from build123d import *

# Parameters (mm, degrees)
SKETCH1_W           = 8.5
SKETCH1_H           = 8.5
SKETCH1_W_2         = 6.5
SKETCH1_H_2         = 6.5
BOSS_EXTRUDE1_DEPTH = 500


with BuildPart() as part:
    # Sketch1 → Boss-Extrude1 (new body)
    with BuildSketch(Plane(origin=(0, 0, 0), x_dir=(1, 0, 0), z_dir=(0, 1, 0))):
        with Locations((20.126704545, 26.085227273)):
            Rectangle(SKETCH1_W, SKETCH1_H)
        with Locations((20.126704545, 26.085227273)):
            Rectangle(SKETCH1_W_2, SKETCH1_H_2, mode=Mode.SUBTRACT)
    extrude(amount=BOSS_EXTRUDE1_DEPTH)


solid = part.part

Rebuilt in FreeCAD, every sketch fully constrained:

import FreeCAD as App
import Part
import Sketcher
from FreeCAD import Vector
Q = App.Units.Quantity

doc = App.newDocument("Part")
body = doc.addObject("PartDesign::Body", "Body")

sketch1 = body.newObject("Sketcher::SketchObject", "Sketch")
sketch1.AttachmentSupport = (doc.getObject("XZ_Plane"), [""])
sketch1.MapMode = "FlatFace"
sketch1.addGeometry(Part.LineSegment(Vector(16, -30, 0), Vector(16, -22, 0)), False)
sketch1.addGeometry(Part.LineSegment(Vector(16, -22, 0), Vector(24, -22, 0)), False)
sketch1.addGeometry(Part.LineSegment(Vector(24, -22, 0), Vector(24, -30, 0)), False)
sketch1.addGeometry(Part.LineSegment(Vector(24, -30, 0), Vector(16, -30, 0)), False)
sketch1.addGeometry(Part.LineSegment(Vector(23, -23, 0), Vector(17, -23, 0)), False)
sketch1.addGeometry(Part.LineSegment(Vector(17, -23, 0), Vector(17, -29, 0)), False)
sketch1.addGeometry(Part.LineSegment(Vector(17, -29, 0), Vector(23, -29, 0)), False)
sketch1.addGeometry(Part.LineSegment(Vector(23, -29, 0), Vector(23, -23, 0)), False)
sketch1.addConstraint(Sketcher.Constraint("Coincident", 0, 2, 1, 1))
sketch1.addConstraint(Sketcher.Constraint("Coincident", 1, 2, 2, 1))
sketch1.addConstraint(Sketcher.Constraint("Coincident", 2, 2, 3, 1))
sketch1.addConstraint(Sketcher.Constraint("Coincident", 3, 2, 0, 1))
sketch1.addConstraint(Sketcher.Constraint("Coincident", 4, 2, 5, 1))
sketch1.addConstraint(Sketcher.Constraint("Coincident", 5, 2, 6, 1))
sketch1.addConstraint(Sketcher.Constraint("Coincident", 6, 2, 7, 1))
sketch1.addConstraint(Sketcher.Constraint("Coincident", 7, 2, 4, 1))
sketch1.addConstraint(Sketcher.Constraint("Vertical", 0))
sketch1.addConstraint(Sketcher.Constraint("Horizontal", 1))
sketch1.addConstraint(Sketcher.Constraint("Vertical", 2))
sketch1.addConstraint(Sketcher.Constraint("Horizontal", 3))
sketch1.addConstraint(Sketcher.Constraint("Horizontal", 4))
sketch1.addConstraint(Sketcher.Constraint("Vertical", 5))
sketch1.addConstraint(Sketcher.Constraint("Horizontal", 6))
sketch1.addConstraint(Sketcher.Constraint("Vertical", 7))
sketch1.addConstraint(Sketcher.Constraint("Equal", 3, 0))
sketch1.addConstraint(Sketcher.Constraint("Equal", 6, 5))
sketch1.addConstraint(Sketcher.Constraint("DistanceX", 1, 1, 1, 2, Q("8.5 mm")))
sketch1.addConstraint(Sketcher.Constraint("DistanceX", 4, 2, 4, 1, Q("6.5 mm")))
sketch1.addConstraint(Sketcher.Constraint("DistanceX", 0, 2, 4, 2, Q("1 mm")))
sketch1.addConstraint(Sketcher.Constraint("DistanceY", 4, 2, 0, 2, Q("1 mm")))
sketch1.addConstraint(Sketcher.Constraint("DistanceX", -1, 1, 0, 2, Q("15.876705 mm")))
sketch1.addConstraint(Sketcher.Constraint("DistanceY", 0, 2, -1, 1, Q("21.835227 mm")))
pad1 = body.newObject("PartDesign::Pad", "Pad")
pad1.Profile = sketch1
pad1.Length = 500
pad1.Reversed = True

doc.recompute()
